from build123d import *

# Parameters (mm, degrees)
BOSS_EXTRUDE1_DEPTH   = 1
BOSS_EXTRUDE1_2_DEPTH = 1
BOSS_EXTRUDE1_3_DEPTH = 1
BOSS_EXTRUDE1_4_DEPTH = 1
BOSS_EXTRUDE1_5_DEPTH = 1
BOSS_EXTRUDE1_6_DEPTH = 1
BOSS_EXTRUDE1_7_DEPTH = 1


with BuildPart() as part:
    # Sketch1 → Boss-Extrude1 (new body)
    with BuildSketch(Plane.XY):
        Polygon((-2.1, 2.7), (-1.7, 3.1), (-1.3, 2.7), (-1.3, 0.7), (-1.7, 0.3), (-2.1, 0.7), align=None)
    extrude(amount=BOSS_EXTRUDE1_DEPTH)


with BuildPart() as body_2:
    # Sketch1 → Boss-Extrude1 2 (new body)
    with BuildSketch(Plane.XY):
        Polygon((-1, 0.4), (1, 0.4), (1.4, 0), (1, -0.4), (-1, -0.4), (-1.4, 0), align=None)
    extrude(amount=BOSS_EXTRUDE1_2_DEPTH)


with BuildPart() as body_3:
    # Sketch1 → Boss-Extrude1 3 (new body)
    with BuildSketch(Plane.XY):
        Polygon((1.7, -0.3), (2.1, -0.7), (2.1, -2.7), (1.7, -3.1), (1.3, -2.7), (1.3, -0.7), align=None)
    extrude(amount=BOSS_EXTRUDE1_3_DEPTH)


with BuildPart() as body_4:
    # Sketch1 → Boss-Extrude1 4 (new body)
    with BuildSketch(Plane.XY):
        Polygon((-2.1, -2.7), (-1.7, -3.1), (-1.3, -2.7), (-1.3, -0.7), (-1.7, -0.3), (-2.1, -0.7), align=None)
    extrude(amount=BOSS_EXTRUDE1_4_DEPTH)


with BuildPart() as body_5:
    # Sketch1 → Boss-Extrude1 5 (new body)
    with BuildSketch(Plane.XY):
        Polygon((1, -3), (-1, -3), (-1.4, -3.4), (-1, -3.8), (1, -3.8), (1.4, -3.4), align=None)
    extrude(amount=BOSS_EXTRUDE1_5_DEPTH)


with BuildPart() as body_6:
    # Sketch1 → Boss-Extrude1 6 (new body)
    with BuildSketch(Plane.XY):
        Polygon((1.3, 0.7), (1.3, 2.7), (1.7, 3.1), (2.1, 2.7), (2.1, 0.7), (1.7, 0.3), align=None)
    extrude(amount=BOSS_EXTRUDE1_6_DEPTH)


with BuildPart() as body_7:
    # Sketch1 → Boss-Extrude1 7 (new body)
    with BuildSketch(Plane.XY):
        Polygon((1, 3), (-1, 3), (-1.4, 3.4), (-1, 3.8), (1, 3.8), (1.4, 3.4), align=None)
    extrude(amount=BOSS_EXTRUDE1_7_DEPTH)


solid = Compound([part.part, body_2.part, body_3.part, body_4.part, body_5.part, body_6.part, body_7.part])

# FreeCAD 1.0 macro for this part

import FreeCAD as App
import Part
import Sketcher
from FreeCAD import Vector


def add_polygon(sketch, points):
    """Adds a closed chain of lines whose ends are joined by coincident constraints."""
    first, n = sketch.GeometryCount, len(points)
    for a, b in zip(points, points[1:] + points[:1]):
        sketch.addGeometry(Part.LineSegment(App.Vector(*a, 0), App.Vector(*b, 0)), False)
    for i in range(n):
        sketch.addConstraint(Sketcher.Constraint("Coincident", first + i, 2, first + (i + 1) % n, 1))

doc = App.newDocument("Part")
body = doc.addObject("PartDesign::Body", "Body")

# Sketch on XY plane
sketch1 = body.newObject("Sketcher::SketchObject", "Sketch")
sketch1.AttachmentSupport = (doc.getObject("XY_Plane"), [""])
sketch1.MapMode = "FlatFace"
add_polygon(sketch1, [(-1.7, 3.1), (-2.1, 2.7), (-2.1, 0.7), (-1.7, 0.3), (-1.3, 0.7), (-1.3, 2.7)])  # lines 0-5
sketch1.addConstraint(Sketcher.Constraint("Vertical", 1))
sketch1.addConstraint(Sketcher.Constraint("Vertical", 4))
sketch1.addConstraint(Sketcher.Constraint("Perpendicular", 0, 2))
sketch1.addConstraint(Sketcher.Constraint("Perpendicular", 2, 3))
sketch1.addConstraint(Sketcher.Constraint("Perpendicular", 3, 5))
sketch1.addConstraint(Sketcher.Constraint("Horizontal", 1, 2, 3, 2))
sketch1.addConstraint(Sketcher.Constraint("Horizontal", 0, 2, 4, 2))
sketch1.addConstraint(Sketcher.Constraint("Vertical", 2, 2, 5, 2))
sketch1.addConstraint(Sketcher.Constraint("DistanceY", 1, 2, 1, 1, 2.0))
sketch1.addConstraint(Sketcher.Constraint("DistanceX", 0, 2, -1, 1, 2.1))
sketch1.addConstraint(Sketcher.Constraint("DistanceY", -1, 1, 0, 2, 2.7))
sketch1.addConstraint(Sketcher.Constraint("DistanceX", 2, 2, -1, 1, 1.7))
pad1 = body.newObject("PartDesign::Pad", "Pad")
pad1.Profile = sketch1
pad1.Length = 1
body2 = doc.addObject("PartDesign::Body", "Body001")

# Sketch on XY plane
sketch2 = body2.newObject("Sketcher::SketchObject", "Sketch001")
sketch2.AttachmentSupport = (doc.getObject("XY_Plane001"), [""])
sketch2.MapMode = "FlatFace"
add_polygon(sketch2, [(1, 0.4), (-1, 0.4), (-1.4, 0), (-1, -0.4), (1, -0.4), (1.4, 0)])  # lines 0-5
sketch2.addConstraint(Sketcher.Constraint("Horizontal", 0))
sketch2.addConstraint(Sketcher.Constraint("Horizontal", 3))
sketch2.addConstraint(Sketcher.Constraint("Symmetric", 0, 2, 3, 2, -1, 1))
sketch2.addConstraint(Sketcher.Constraint("Symmetric", 1, 2, 4, 2, -1, 1))
sketch2.addConstraint(Sketcher.Constraint("PointOnObject", 1, 2, -1))
sketch2.addConstraint(Sketcher.Constraint("Perpendicular", 1, 2))
sketch2.addConstraint(Sketcher.Constraint("Perpendicular", 4, 5))
sketch2.addConstraint(Sketcher.Constraint("Vertical", 0, 2, 2, 2))
sketch2.addConstraint(Sketcher.Constraint("DistanceX", 0, 2, 0, 1, 2.0))
sketch2.addConstraint(Sketcher.Constraint("DistanceY", -1, 1, 0, 2, 0.4))
pad2 = body2.newObject("PartDesign::Pad", "Pad001")
pad2.Profile = sketch2
pad2.Length = 1
body3 = doc.addObject("PartDesign::Body", "Body002")

# Sketch on XY plane
sketch3 = body3.newObject("Sketcher::SketchObject", "Sketch002")
sketch3.AttachmentSupport = (doc.getObject("XY_Plane002"), [""])
sketch3.MapMode = "FlatFace"
add_polygon(sketch3, [(2.1, -0.7), (1.7, -0.3), (1.3, -0.7), (1.3, -2.7), (1.7, -3.1), (2.1, -2.7)])  # lines 0-5
sketch3.addConstraint(Sketcher.Constraint("Vertical", 2))
sketch3.addConstraint(Sketcher.Constraint("Vertical", 5))
sketch3.addConstraint(Sketcher.Constraint("Perpendicular", 0, 1))
sketch3.addConstraint(Sketcher.Constraint("Perpendicular", 1, 3))
sketch3.addConstraint(Sketcher.Constraint("Perpendicular", 3, 4))
sketch3.addConstraint(Sketcher.Constraint("Horizontal", 2, 2, 4, 2))
sketch3.addConstraint(Sketcher.Constraint("Horizontal", 1, 2, 5, 2))
sketch3.addConstraint(Sketcher.Constraint("Vertical", 0, 2, 3, 2))
sketch3.addConstraint(Sketcher.Constraint("DistanceY", 2, 2, 2, 1, 2.0))
sketch3.addConstraint(Sketcher.Constraint("DistanceX", -1, 1, 0, 2, 1.7))
sketch3.addConstraint(Sketcher.Constraint("DistanceY", 0, 2, -1, 1, 0.3))
sketch3.addConstraint(Sketcher.Constraint("DistanceX", -1, 1, 1, 2, 1.3))
pad3 = body3.newObject("PartDesign::Pad", "Pad002")
pad3.Profile = sketch3
pad3.Length = 1
body4 = doc.addObject("PartDesign::Body", "Body003")

# Sketch on XY plane
sketch4 = body4.newObject("Sketcher::SketchObject", "Sketch003")
sketch4.AttachmentSupport = (doc.getObject("XY_Plane003"), [""])
sketch4.MapMode = "FlatFace"
add_polygon(sketch4, [(-2.1, -2.7), (-1.7, -3.1), (-1.3, -2.7), (-1.3, -0.7), (-1.7, -0.3), (-2.1, -0.7)])  # lines 0-5
sketch4.addConstraint(Sketcher.Constraint("Vertical", 2))
sketch4.addConstraint(Sketcher.Constraint("Vertical", 5))
sketch4.addConstraint(Sketcher.Constraint("Perpendicular", 0, 1))
sketch4.addConstraint(Sketcher.Constraint("Perpendicular", 1, 3))
sketch4.addConstraint(Sketcher.Constraint("Perpendicular", 3, 4))
sketch4.addConstraint(Sketcher.Constraint("Horizontal", 2, 2, 4, 2))
sketch4.addConstraint(Sketcher.Constraint("Horizontal", 1, 2, 5, 2))
sketch4.addConstraint(Sketcher.Constraint("Vertical", 0, 2, 3, 2))
sketch4.addConstraint(Sketcher.Constraint("DistanceY", 2, 1, 2, 2, 2.0))
sketch4.addConstraint(Sketcher.Constraint("DistanceX", 0, 2, -1, 1, 1.7))
sketch4.addConstraint(Sketcher.Constraint("DistanceY", 0, 2, -1, 1, 3.1))
sketch4.addConstraint(Sketcher.Constraint("DistanceX", 1, 2, -1, 1, 1.3))
pad4 = body4.newObject("PartDesign::Pad", "Pad003")
pad4.Profile = sketch4
pad4.Length = 1
body5 = doc.addObject("PartDesign::Body", "Body004")

# Sketch on XY plane
sketch5 = body5.newObject("Sketcher::SketchObject", "Sketch004")
sketch5.AttachmentSupport = (doc.getObject("XY_Plane004"), [""])
sketch5.MapMode = "FlatFace"
add_polygon(sketch5, [(1, -3), (-1, -3), (-1.4, -3.4), (-1, -3.8), (1, -3.8), (1.4, -3.4)])  # lines 0-5
sketch5.addConstraint(Sketcher.Constraint("Horizontal", 0))
sketch5.addConstraint(Sketcher.Constraint("Horizontal", 3))
sketch5.addConstraint(Sketcher.Constraint("Symmetric", 1, 2, 4, 2, -2))
sketch5.addConstraint(Sketcher.Constraint("Perpendicular", 1, 2))
sketch5.addConstraint(Sketcher.Constraint("Perpendicular", 2, 4))
sketch5.addConstraint(Sketcher.Constraint("Perpendicular", 4, 5))
sketch5.addConstraint(Sketcher.Constraint("Vertical", 0, 2, 2, 2))
sketch5.addConstraint(Sketcher.Constraint("Vertical", 3, 2, 5, 2))
sketch5.addConstraint(Sketcher.Constraint("DistanceX", 0, 2, 0, 1, 2.0))
sketch5.addConstraint(Sketcher.Constraint("DistanceY", 0, 2, -1, 1, 3.0))
sketch5.addConstraint(Sketcher.Constraint("DistanceX", 1, 2, -1, 1, 1.4))
pad5 = body5.newObject("PartDesign::Pad", "Pad004")
pad5.Profile = sketch5
pad5.Length = 1
body6 = doc.addObject("PartDesign::Body", "Body005")

# Sketch on XY plane
sketch6 = body6.newObject("Sketcher::SketchObject", "Sketch005")
sketch6.AttachmentSupport = (doc.getObject("XY_Plane005"), [""])
sketch6.MapMode = "FlatFace"
add_polygon(sketch6, [(1.3, 2.7), (1.3, 0.7), (1.7, 0.3), (2.1, 0.7), (2.1, 2.7), (1.7, 3.1)])  # lines 0-5
sketch6.addConstraint(Sketcher.Constraint("Vertical", 0))
sketch6.addConstraint(Sketcher.Constraint("Vertical", 3))
sketch6.addConstraint(Sketcher.Constraint("Perpendicular", 1, 2))
sketch6.addConstraint(Sketcher.Constraint("Perpendicular", 2, 4))
sketch6.addConstraint(Sketcher.Constraint("Perpendicular", 4, 5))
sketch6.addConstraint(Sketcher.Constraint("Horizontal", 0, 2, 2, 2))
sketch6.addConstraint(Sketcher.Constraint("Horizontal", 3, 2, 5, 2))
sketch6.addConstraint(Sketcher.Constraint("Vertical", 1, 2, 4, 2))
sketch6.addConstraint(Sketcher.Constraint("DistanceY", 0, 2, 0, 1, 2.0))
sketch6.addConstraint(Sketcher.Constraint("DistanceX", -1, 1, 0, 2, 1.3))
sketch6.addConstraint(Sketcher.Constraint("DistanceY", -1, 1, 0, 2, 0.7))
sketch6.addConstraint(Sketcher.Constraint("DistanceX", -1, 1, 1, 2, 1.7))
pad6 = body6.newObject("PartDesign::Pad", "Pad005")
pad6.Profile = sketch6
pad6.Length = 1
body7 = doc.addObject("PartDesign::Body", "Body006")

# Sketch on XY plane
sketch7 = body7.newObject("Sketcher::SketchObject", "Sketch006")
sketch7.AttachmentSupport = (doc.getObject("XY_Plane006"), [""])
sketch7.MapMode = "FlatFace"
add_polygon(sketch7, [(-1, 3), (1, 3), (1.4, 3.4), (1, 3.8), (-1, 3.8), (-1.4, 3.4)])  # lines 0-5
sketch7.addConstraint(Sketcher.Constraint("Horizontal", 0))
sketch7.addConstraint(Sketcher.Constraint("Horizontal", 3))
sketch7.addConstraint(Sketcher.Constraint("Symmetric", 1, 2, 4, 2, -2))
sketch7.addConstraint(Sketcher.Constraint("Perpendicular", 1, 2))
sketch7.addConstraint(Sketcher.Constraint("Perpendicular", 2, 4))
sketch7.addConstraint(Sketcher.Constraint("Perpendicular", 4, 5))
sketch7.addConstraint(Sketcher.Constraint("Vertical", 0, 2, 2, 2))
sketch7.addConstraint(Sketcher.Constraint("Vertical", 3, 2, 5, 2))
sketch7.addConstraint(Sketcher.Constraint("DistanceX", 0, 1, 0, 2, 2.0))
sketch7.addConstraint(Sketcher.Constraint("DistanceY", -1, 1, 0, 2, 3.0))
sketch7.addConstraint(Sketcher.Constraint("DistanceX", -1, 1, 1, 2, 1.4))
pad7 = body7.newObject("PartDesign::Pad", "Pad006")
pad7.Profile = sketch7
pad7.Length = 1

doc.recompute()
